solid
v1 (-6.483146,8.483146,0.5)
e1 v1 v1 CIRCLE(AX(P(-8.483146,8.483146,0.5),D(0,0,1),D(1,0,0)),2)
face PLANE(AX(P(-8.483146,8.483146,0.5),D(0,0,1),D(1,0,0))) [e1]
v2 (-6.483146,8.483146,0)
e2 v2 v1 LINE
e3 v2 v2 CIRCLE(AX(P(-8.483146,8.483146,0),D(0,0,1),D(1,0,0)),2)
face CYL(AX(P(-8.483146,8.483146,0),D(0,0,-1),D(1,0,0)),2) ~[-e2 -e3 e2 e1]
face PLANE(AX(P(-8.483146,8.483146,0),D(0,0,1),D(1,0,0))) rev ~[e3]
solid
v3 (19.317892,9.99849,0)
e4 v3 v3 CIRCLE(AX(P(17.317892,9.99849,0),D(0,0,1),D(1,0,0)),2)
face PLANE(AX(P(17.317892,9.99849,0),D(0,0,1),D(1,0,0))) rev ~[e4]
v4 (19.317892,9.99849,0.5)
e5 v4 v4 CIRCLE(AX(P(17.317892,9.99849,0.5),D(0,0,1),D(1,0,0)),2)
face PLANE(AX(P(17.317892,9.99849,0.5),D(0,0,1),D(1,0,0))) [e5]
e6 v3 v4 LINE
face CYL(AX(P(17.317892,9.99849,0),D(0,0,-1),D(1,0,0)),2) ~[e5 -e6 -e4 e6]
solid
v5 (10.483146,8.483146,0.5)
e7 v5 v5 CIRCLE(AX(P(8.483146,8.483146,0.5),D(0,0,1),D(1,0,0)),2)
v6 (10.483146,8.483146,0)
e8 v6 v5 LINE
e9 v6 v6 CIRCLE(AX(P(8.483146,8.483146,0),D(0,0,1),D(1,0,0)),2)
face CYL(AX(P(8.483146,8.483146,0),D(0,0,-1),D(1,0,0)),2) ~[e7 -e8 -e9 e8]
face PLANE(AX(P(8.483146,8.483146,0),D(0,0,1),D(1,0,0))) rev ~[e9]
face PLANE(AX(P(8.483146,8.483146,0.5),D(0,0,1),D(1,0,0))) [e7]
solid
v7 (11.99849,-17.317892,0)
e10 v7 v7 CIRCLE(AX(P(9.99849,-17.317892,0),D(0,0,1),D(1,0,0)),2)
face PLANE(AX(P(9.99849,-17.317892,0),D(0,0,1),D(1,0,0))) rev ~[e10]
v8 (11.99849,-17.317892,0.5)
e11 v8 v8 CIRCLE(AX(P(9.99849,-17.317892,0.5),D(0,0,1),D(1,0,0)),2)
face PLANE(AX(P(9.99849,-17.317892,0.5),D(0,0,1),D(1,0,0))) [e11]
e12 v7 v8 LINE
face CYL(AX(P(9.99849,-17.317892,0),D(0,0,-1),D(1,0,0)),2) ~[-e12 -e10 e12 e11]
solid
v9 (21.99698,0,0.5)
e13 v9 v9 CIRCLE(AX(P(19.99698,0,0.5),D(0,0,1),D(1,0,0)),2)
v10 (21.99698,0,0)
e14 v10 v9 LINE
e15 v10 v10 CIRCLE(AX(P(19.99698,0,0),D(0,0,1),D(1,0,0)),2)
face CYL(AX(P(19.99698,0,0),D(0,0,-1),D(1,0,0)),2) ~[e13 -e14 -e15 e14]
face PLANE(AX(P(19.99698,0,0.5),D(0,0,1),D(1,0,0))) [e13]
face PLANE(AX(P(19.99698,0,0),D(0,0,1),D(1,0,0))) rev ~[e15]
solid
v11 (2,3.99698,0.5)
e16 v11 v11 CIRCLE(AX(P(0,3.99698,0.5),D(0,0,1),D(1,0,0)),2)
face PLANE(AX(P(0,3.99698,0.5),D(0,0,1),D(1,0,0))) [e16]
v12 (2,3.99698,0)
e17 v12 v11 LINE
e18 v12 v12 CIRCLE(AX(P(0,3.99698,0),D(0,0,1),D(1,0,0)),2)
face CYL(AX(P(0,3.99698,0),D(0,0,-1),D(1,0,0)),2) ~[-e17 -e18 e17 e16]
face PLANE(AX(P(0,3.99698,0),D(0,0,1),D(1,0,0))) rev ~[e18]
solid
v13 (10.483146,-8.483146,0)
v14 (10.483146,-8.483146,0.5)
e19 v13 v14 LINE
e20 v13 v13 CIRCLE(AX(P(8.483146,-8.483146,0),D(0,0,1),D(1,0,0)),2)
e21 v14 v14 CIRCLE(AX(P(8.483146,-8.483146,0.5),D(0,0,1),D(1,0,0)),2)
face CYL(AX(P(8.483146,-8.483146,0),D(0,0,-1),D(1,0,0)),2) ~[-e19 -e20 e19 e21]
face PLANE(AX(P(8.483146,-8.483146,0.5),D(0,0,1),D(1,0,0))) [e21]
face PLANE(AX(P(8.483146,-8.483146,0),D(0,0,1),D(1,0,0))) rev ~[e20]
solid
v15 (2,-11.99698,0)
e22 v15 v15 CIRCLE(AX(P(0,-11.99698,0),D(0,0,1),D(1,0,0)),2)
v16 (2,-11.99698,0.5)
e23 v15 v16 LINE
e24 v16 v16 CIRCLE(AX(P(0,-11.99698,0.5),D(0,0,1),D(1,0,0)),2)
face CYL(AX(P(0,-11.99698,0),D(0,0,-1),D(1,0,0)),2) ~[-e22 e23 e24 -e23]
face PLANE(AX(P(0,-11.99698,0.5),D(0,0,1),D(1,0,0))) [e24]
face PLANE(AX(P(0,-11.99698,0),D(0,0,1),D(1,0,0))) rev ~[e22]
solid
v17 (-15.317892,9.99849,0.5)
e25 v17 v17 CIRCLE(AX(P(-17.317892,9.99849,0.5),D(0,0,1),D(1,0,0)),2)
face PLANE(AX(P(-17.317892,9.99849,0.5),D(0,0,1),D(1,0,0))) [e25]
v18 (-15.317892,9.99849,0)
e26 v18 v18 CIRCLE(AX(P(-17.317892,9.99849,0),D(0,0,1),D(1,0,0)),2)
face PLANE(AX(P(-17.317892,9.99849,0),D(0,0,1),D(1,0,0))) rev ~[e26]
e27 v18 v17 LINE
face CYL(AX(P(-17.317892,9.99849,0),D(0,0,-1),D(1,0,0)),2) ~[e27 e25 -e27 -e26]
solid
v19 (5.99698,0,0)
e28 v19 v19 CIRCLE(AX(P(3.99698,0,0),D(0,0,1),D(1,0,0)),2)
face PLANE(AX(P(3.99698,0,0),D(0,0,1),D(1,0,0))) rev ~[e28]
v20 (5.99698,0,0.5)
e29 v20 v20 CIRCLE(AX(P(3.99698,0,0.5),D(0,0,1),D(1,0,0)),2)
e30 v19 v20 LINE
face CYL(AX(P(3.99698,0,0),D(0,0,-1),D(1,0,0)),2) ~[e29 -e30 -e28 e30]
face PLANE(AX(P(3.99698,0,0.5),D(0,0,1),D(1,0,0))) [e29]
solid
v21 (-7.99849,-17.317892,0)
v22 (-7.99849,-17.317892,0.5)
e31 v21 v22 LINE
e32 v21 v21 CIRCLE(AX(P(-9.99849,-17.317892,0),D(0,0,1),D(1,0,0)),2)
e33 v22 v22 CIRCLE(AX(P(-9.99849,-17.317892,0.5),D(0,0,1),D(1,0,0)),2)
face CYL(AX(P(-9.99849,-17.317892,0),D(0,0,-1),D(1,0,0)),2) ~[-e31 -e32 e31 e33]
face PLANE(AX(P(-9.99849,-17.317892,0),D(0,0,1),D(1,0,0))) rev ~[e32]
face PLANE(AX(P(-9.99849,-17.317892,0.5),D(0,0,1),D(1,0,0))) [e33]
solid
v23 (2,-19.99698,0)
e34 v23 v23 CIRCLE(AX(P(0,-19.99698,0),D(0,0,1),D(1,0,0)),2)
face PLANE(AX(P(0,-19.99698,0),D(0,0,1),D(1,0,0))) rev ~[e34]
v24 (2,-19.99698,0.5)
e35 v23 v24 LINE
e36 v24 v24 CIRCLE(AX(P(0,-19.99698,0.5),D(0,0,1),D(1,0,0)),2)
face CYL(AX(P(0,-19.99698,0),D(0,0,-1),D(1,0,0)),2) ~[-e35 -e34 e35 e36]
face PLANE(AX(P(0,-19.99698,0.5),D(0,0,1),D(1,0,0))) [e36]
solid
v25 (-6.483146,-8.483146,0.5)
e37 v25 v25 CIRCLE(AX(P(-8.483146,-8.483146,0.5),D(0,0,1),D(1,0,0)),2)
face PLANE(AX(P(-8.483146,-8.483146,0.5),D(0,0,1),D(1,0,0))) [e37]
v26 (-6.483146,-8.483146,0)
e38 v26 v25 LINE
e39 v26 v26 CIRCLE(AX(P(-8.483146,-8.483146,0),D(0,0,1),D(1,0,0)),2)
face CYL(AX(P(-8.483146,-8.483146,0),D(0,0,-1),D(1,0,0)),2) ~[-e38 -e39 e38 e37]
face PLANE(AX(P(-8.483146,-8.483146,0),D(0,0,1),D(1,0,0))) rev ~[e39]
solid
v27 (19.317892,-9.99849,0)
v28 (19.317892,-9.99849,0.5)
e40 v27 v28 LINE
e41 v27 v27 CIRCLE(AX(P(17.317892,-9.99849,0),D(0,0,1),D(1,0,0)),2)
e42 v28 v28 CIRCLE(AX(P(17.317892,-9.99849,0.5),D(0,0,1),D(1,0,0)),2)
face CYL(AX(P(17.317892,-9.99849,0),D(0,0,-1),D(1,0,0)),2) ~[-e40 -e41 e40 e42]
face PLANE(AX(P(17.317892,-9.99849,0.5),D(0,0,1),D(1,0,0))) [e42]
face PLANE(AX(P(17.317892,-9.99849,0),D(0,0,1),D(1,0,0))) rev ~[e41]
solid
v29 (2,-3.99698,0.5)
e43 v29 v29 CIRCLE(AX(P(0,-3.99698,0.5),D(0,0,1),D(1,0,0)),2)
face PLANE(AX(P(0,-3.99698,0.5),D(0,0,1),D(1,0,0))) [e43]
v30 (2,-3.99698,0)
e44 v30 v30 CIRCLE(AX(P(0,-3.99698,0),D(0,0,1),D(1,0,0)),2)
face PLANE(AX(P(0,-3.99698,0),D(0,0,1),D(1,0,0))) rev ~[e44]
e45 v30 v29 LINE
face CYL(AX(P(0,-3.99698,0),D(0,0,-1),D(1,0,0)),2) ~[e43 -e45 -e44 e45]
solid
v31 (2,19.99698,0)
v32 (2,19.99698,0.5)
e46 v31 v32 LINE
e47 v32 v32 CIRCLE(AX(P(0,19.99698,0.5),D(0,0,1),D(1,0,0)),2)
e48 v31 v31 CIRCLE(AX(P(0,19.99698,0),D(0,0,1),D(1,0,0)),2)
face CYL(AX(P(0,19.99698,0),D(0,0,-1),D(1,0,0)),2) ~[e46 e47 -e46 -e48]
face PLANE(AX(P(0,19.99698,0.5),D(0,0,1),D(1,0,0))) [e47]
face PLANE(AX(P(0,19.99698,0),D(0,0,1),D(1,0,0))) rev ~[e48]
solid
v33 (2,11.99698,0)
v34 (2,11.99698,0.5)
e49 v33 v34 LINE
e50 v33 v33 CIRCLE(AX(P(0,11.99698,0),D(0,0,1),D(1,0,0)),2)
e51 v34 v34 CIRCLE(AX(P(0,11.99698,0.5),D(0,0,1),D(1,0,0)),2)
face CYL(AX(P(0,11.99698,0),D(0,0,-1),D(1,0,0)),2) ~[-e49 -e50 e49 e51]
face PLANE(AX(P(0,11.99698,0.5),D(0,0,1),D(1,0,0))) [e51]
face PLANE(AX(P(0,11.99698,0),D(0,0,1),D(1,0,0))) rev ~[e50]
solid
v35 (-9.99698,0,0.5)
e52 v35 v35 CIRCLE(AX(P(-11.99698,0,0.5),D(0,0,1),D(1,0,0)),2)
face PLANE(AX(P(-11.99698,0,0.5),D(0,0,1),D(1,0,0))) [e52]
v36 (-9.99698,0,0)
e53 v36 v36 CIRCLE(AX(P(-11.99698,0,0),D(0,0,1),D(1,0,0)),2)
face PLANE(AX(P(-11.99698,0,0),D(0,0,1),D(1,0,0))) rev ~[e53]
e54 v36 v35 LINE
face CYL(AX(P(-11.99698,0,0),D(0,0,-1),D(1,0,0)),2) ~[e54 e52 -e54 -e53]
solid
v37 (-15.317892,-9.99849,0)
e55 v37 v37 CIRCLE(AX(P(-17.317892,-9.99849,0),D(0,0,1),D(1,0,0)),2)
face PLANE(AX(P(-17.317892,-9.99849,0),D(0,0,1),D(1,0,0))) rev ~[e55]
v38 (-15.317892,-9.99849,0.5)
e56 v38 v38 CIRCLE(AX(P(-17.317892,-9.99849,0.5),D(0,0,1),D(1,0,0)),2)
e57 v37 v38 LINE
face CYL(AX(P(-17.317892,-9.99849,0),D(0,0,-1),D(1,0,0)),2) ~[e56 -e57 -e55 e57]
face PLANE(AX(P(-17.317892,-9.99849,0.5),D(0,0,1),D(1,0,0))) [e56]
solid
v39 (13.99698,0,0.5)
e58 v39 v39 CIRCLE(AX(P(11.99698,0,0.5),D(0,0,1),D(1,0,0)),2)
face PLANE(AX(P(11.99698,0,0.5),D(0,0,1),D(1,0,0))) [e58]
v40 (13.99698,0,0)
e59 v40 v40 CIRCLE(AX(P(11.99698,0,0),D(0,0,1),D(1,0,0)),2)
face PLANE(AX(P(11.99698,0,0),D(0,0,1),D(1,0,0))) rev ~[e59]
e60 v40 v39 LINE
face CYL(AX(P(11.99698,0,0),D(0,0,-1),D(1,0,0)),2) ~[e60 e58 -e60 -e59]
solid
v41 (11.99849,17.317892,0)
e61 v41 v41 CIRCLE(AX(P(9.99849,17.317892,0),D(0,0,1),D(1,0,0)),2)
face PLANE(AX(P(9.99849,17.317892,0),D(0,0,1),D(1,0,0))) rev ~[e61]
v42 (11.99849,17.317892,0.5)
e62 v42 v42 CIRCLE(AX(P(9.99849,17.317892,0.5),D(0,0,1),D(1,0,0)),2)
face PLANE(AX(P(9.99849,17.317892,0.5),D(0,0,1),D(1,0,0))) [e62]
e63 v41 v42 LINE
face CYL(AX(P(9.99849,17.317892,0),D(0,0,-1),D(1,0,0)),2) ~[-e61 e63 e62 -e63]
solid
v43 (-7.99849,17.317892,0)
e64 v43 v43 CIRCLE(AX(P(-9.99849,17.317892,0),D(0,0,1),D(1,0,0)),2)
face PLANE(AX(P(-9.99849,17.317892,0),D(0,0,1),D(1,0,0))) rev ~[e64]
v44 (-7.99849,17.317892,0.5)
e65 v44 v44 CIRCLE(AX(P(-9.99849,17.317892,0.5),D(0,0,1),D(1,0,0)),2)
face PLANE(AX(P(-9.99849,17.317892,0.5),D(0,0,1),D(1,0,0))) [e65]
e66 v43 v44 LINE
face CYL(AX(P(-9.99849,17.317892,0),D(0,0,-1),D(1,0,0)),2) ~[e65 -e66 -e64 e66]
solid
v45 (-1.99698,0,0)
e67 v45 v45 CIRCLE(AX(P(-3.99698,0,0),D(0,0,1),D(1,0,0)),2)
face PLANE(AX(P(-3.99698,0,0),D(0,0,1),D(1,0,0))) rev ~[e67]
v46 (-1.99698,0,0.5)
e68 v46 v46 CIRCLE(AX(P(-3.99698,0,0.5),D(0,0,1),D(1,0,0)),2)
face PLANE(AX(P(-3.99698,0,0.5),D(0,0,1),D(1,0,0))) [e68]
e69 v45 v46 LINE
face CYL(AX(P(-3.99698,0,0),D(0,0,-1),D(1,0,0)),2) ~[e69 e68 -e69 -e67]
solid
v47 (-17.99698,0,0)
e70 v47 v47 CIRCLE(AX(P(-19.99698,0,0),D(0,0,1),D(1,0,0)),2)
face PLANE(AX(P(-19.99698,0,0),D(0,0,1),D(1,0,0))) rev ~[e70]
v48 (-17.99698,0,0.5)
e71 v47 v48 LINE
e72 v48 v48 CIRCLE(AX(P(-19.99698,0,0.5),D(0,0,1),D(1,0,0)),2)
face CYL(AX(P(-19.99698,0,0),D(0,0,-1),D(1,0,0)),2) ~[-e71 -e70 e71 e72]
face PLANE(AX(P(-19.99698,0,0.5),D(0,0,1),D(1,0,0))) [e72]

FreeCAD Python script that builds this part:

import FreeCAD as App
import Part
import Sketcher
from FreeCAD import Vector

doc = App.newDocument("Part")
body = doc.addObject("PartDesign::Body", "Body")
body.AllowCompound = True

sketch1 = body.newObject("Sketcher::SketchObject", "Sketch")
sketch1.AttachmentSupport = (doc.getObject("XY_Plane"), [""])
sketch1.MapMode = "FlatFace"
sketch1.addGeometry([
    Part.Circle(Vector(-17.317892, -9.99849, 0), Vector(0, 0, 1), 2),
    Part.Circle(Vector(-9.99849, -17.317892, 0), Vector(0, 0, 1), 2),
    Part.Circle(Vector(0, -19.99698, 0), Vector(0, 0, 1), 2),
    Part.Circle(Vector(9.99849, -17.317892, 0), Vector(0, 0, 1), 2),
    Part.Circle(Vector(8.483146, -8.483146, 0), Vector(0, 0, 1), 2),
    Part.Circle(Vector(0, -11.99698, 0), Vector(0, 0, 1), 2),
    Part.Circle(Vector(-8.483146, -8.483146, 0), Vector(0, 0, 1), 2),
    Part.Circle(Vector(-11.99698, 0, 0), Vector(0, 0, 1), 2),
    Part.Circle(Vector(-19.99698, 0, 0), Vector(0, 0, 1), 2),
    Part.Circle(Vector(-17.317892, 9.99849, 0), Vector(0, 0, 1), 2),
    Part.Circle(Vector(-8.483146, 8.483146, 0), Vector(0, 0, 1), 2),
    Part.Circle(Vector(-9.99849, 17.317892, 0), Vector(0, 0, 1), 2),
    Part.Circle(Vector(0, 11.99698, 0), Vector(0, 0, 1), 2),
    Part.Circle(Vector(0, 19.99698, 0), Vector(0, 0, 1), 2),
    Part.Circle(Vector(9.99849, 17.317892, 0), Vector(0, 0, 1), 2),
    Part.Circle(Vector(8.483146, 8.483146, 0), Vector(0, 0, 1), 2),
    Part.Circle(Vector(17.317892, 9.99849, 0), Vector(0, 0, 1), 2),
    Part.Circle(Vector(19.99698, 0, 0), Vector(0, 0, 1), 2),
    Part.Circle(Vector(17.317892, -9.99849, 0), Vector(0, 0, 1), 2),
    Part.Circle(Vector(11.99698, 0, 0), Vector(0, 0, 1), 2),
    Part.Circle(Vector(3.99698, 0, 0), Vector(0, 0, 1), 2),
    Part.Circle(Vector(0, 3.99698, 0), Vector(0, 0, 1), 2),
    Part.Circle(Vector(0, -3.99698, 0), Vector(0, 0, 1), 2),
    Part.Circle(Vector(-3.99698, 0, 0), Vector(0, 0, 1), 2),
], False)
sketch1.addConstraint([
    Sketcher.Constraint("Equal", 0, 1),
    Sketcher.Constraint("Equal", 1, 2),
    Sketcher.Constraint("Equal", 2, 3),
    Sketcher.Constraint("Equal", 3, 4),
    Sketcher.Constraint("Equal", 4, 5),
    Sketcher.Constraint("Equal", 5, 6),
    Sketcher.Constraint("Equal", 6, 7),
    Sketcher.Constraint("Equal", 7, 8),
    Sketcher.Constraint("Equal", 8, 9),
    Sketcher.Constraint("Equal", 9, 10),
    Sketcher.Constraint("Equal", 10, 11),
    Sketcher.Constraint("Equal", 11, 12),
    Sketcher.Constraint("Equal", 12, 13),
    Sketcher.Constraint("Equal", 13, 14),
    Sketcher.Constraint("Equal", 14, 15),
    Sketcher.Constraint("Equal", 15, 16),
    Sketcher.Constraint("Equal", 16, 17),
    Sketcher.Constraint("Equal", 17, 18),
    Sketcher.Constraint("Equal", 18, 19),
    Sketcher.Constraint("Equal", 19, 20),
    Sketcher.Constraint("Equal", 20, 21),
    Sketcher.Constraint("Equal", 21, 22),
    Sketcher.Constraint("Equal", 22, 23),
    Sketcher.Constraint("Symmetric", 4, 3, 10, 3, -1, 1),
    Sketcher.Constraint("Symmetric", 3, 3, 11, 3, -1, 1),
    Sketcher.Constraint("Symmetric", 5, 3, 12, 3, -1, 1),
    Sketcher.Constraint("Symmetric", 2, 3, 13, 3, -1, 1),
    Sketcher.Constraint("Symmetric", 1, 3, 14, 3, -1, 1),
    Sketcher.Constraint("Symmetric", 6, 3, 15, 3, -1, 1),
    Sketcher.Constraint("Symmetric", 0, 3, 16, 3, -1, 1),
    Sketcher.Constraint("Symmetric", 8, 3, 17, 3, -1, 1),
    Sketcher.Constraint("Symmetric", 9, 3, 18, 3, -1, 1),
    Sketcher.Constraint("Symmetric", 7, 3, 19, 3, -1, 1),
    Sketcher.Constraint("Symmetric", 21, 3, 22, 3, -1, 1),
    Sketcher.Constraint("Symmetric", 20, 3, 23, 3, -1, 1),
    Sketcher.Constraint("Symmetric", 1, 3, 3, 3, -2),
    Sketcher.Constraint("Symmetric", 4, 3, 6, 3, -2),
    Sketcher.Constraint("Symmetric", 9, 3, 16, 3, -2),
    Sketcher.Constraint("PointOnObject", 2, 3, -2),
    Sketcher.Constraint("PointOnObject", 5, 3, -2),
    Sketcher.Constraint("PointOnObject", 7, 3, -1),
    Sketcher.Constraint("PointOnObject", 8, 3, -1),
    Sketcher.Constraint("PointOnObject", 20, 3, -1),
    Sketcher.Constraint("PointOnObject", 21, 3, -2),
    Sketcher.Constraint("Diameter", 0, 4.0),
    Sketcher.Constraint("DistanceY", 2, 3, 5, 3, 8.0),
    Sketcher.Constraint("DistanceX", 8, 3, 7, 3, 8.0),
    Sketcher.Constraint("DistanceX", 20, 3, 19, 3, 8.0),
    Sketcher.Constraint("DistanceY", 21, 3, 12, 3, 8.0),
    Sketcher.Constraint("DistanceY", 0, 3, -1, 1, 9.99849),
    Sketcher.Constraint("DistanceX", 1, 3, -1, 1, 9.99849),
    Sketcher.Constraint("DistanceY", 2, 3, -1, 1, 19.99698),
    Sketcher.Constraint("DistanceX", 7, 3, -1, 1, 11.99698),
    Sketcher.Constraint("DistanceY", 2, 3, 1, 3, 2.679088),
    Sketcher.Constraint("DistanceX", 6, 3, 4, 3, 16.966292),
    Sketcher.Constraint("DistanceX", 8, 3, 0, 3, 2.679088),
    Sketcher.Constraint("DistanceY", 6, 3, 10, 3, 16.966292),
])
pad1 = body.newObject("PartDesign::Pad", "Pad")
pad1.Profile = sketch1
pad1.Length = 0.5

doc.recompute()
